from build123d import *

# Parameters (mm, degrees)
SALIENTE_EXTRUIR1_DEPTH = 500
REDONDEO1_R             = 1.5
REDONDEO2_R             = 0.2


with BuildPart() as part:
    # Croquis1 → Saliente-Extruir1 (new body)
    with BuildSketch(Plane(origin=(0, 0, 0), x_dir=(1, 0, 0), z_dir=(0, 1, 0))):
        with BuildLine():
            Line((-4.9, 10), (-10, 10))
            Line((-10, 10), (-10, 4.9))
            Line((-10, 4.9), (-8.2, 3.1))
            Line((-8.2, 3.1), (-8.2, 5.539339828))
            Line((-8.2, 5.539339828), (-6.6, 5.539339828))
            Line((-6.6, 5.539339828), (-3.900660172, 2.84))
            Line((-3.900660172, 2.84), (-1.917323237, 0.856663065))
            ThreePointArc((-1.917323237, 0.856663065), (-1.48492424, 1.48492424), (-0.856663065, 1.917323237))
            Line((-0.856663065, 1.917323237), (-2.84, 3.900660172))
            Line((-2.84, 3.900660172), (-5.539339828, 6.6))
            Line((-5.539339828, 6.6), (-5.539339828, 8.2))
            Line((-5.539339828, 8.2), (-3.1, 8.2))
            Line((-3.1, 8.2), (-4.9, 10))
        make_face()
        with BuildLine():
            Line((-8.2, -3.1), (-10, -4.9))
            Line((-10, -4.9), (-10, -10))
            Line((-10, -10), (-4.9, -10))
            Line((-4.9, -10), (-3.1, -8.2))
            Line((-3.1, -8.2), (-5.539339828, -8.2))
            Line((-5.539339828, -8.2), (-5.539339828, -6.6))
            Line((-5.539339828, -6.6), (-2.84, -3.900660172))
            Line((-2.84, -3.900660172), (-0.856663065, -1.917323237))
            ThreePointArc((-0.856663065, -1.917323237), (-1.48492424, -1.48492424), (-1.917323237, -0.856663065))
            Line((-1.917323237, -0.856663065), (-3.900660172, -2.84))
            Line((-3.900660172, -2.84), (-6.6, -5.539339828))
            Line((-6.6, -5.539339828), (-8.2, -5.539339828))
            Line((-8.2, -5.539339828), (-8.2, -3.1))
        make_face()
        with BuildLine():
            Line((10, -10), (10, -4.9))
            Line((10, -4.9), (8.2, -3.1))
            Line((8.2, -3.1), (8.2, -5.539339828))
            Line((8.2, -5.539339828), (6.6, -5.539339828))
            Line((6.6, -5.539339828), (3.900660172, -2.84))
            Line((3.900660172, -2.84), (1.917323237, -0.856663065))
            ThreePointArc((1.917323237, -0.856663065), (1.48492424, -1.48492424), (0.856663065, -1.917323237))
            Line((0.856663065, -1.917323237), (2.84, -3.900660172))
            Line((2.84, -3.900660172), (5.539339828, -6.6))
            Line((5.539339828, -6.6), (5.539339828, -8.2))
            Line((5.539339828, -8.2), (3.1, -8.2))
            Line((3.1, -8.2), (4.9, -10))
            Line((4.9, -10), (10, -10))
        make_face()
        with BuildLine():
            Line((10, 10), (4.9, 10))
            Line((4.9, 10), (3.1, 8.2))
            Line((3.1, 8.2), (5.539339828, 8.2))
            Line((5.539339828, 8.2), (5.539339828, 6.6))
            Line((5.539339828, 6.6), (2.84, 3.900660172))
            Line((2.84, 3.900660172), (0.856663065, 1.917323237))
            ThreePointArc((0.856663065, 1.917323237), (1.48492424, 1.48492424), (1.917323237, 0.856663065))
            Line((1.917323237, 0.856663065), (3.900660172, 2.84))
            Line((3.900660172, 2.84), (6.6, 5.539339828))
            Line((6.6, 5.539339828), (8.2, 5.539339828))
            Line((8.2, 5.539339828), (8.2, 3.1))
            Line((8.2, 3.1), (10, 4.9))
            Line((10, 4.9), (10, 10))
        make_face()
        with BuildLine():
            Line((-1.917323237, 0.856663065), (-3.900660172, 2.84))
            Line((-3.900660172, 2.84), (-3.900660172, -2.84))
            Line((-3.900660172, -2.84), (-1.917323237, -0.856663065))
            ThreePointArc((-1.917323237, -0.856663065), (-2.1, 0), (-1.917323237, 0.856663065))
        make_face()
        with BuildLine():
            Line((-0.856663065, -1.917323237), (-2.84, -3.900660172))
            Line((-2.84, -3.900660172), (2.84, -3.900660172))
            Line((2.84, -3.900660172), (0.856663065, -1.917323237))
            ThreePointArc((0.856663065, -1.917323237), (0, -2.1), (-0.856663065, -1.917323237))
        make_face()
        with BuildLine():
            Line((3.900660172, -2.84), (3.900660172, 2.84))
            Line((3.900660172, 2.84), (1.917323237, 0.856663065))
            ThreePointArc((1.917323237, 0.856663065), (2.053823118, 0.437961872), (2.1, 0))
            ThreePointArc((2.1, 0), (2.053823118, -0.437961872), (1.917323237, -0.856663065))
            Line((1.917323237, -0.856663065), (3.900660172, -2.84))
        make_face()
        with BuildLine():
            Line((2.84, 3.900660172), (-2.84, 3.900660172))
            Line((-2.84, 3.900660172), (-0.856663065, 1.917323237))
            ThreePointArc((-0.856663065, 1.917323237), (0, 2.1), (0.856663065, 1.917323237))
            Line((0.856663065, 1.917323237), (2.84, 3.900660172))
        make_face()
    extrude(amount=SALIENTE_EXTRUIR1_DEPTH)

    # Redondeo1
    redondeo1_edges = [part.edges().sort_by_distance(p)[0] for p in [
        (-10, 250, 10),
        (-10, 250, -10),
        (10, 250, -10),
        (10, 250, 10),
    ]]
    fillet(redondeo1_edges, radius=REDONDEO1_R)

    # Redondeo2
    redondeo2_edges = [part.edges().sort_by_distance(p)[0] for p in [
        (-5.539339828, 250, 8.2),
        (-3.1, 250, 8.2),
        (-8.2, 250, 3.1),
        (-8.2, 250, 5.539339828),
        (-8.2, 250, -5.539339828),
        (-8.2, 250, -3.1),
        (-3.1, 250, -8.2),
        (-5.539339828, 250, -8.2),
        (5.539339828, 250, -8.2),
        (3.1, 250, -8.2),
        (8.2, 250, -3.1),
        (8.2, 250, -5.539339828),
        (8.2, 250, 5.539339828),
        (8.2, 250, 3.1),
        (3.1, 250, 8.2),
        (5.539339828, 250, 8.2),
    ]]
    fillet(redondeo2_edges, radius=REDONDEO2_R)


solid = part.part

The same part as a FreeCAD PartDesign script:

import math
import FreeCAD as App
import Part
import Sketcher
from FreeCAD import Vector
Q = App.Units.Quantity


def edges_at(feature, points):
    """Names of the edges that pass closest to the given points."""
    edges = feature.Shape.Edges
    near = lambda p: min(range(len(edges)), key=lambda i: edges[i].distToShape(Part.Vertex(*p))[0])
    return sorted({f"Edge{near(p) + 1}" for p in points})


def add_polygon(sketch, points):
    """Adds a closed chain of lines whose ends are joined by coincident constraints."""
    first, n = sketch.GeometryCount, len(points)
    for a, b in zip(points, points[1:] + points[:1]):
        sketch.addGeometry(Part.LineSegment(App.Vector(*a, 0), App.Vector(*b, 0)), False)
    for i in range(n):
        sketch.addConstraint(Sketcher.Constraint("Coincident", first + i, 2, first + (i + 1) % n, 1))

doc = App.newDocument("Part")
body = doc.addObject("PartDesign::Body", "Body")

sketch1 = doc.addObject("Sketcher::SketchObject", "Sketch")
body.addObject(sketch1)
sketch1.AttachmentSupport = (doc.XZ_Plane, [""])
sketch1.MapMode = "FlatFace"
add_polygon(sketch1, [(-4.9, -10), (-10, -10), (-10, -4.9), (-8.2, -3.1), (-8.2, -5.5), (-6.6, -5.5), (-3.9, -2.8), (-3.9, 2.8), (-6.6, 5.5), (-8.2, 5.5), (-8.2, 3.1), (-10, 4.9), (-10, 10), (-4.9, 10), (-3.1, 8.2), (-5.5, 8.2), (-5.5, 6.6), (-2.8, 3.9), (2.8, 3.9), (5.5, 6.6), (5.5, 8.2), (3.1, 8.2), (4.9, 10), (10, 10), (10, 4.9), (8.2, 3.1), (8.2, 5.5), (6.6, 5.5), (3.9, 2.8), (3.9, -2.8), (6.6, -5.5), (8.2, -5.5), (8.2, -3.1), (10, -4.9), (10, -10), (4.9, -10), (3.1, -8.2), (5.5, -8.2), (5.5, -6.6), (2.8, -3.9), (-2.8, -3.9), (-5.5, -6.6), (-5.5, -8.2), (-3.1, -8.2)])
sketch1.addGeometry(Part.ArcOfCircle(Part.Circle(Vector(0, 0, 0), Vector(0, 0, 1), 2.1), math.radians(-66), math.radians(-24)), False)
sketch1.addGeometry(Part.ArcOfCircle(Part.Circle(Vector(0, 0, 0), Vector(0, 0, 1), 2.1), math.radians(-24), math.radians(0)), False)
sketch1.addGeometry(Part.ArcOfCircle(Part.Circle(Vector(0, 0, 0), Vector(0, 0, 1), 2.1), math.radians(0), math.radians(24)), False)
sketch1.addGeometry(Part.ArcOfCircle(Part.Circle(Vector(0, 0, 0), Vector(0, 0, 1), 2.1), math.radians(24), math.radians(66)), False)
sketch1.addGeometry(Part.ArcOfCircle(Part.Circle(Vector(0, 0, 0), Vector(0, 0, 1), 2.1), math.radians(66), math.radians(114)), False)
sketch1.addGeometry(Part.ArcOfCircle(Part.Circle(Vector(0, 0, 0), Vector(0, 0, 1), 2.1), math.radians(114), math.radians(156)), False)
sketch1.addGeometry(Part.ArcOfCircle(Part.Circle(Vector(0, 0, 0), Vector(0, 0, 1), 2.1), math.radians(156), math.radians(204)), False)
sketch1.addGeometry(Part.ArcOfCircle(Part.Circle(Vector(0, 0, 0), Vector(0, 0, 1), 2.1), math.radians(-156), math.radians(-114)), False)
sketch1.addGeometry(Part.ArcOfCircle(Part.Circle(Vector(0, 0, 0), Vector(0, 0, 1), 2.1), math.radians(-114), math.radians(-66)), False)
sketch1.addConstraint(Sketcher.Constraint("Tangent", 44, 2, 45, 1))
sketch1.addConstraint(Sketcher.Constraint("Tangent", 45, 2, 46, 1))
sketch1.addConstraint(Sketcher.Constraint("Tangent", 46, 2, 47, 1))
sketch1.addConstraint(Sketcher.Constraint("Tangent", 47, 2, 48, 1))
sketch1.addConstraint(Sketcher.Constraint("Tangent", 48, 2, 49, 1))
sketch1.addConstraint(Sketcher.Constraint("Tangent", 49, 2, 50, 1))
sketch1.addConstraint(Sketcher.Constraint("Tangent", 50, 2, 51, 1))
sketch1.addConstraint(Sketcher.Constraint("Tangent", 51, 2, 52, 1))
sketch1.addConstraint(Sketcher.Constraint("Tangent", 52, 2, 44, 1))
sketch1.addConstraint(Sketcher.Constraint("Horizontal", 0))
sketch1.addConstraint(Sketcher.Constraint("Vertical", 1))
sketch1.addConstraint(Sketcher.Constraint("Vertical", 3))
sketch1.addConstraint(Sketcher.Constraint("Horizontal", 4))
sketch1.addConstraint(Sketcher.Constraint("Vertical", 6))
sketch1.addConstraint(Sketcher.Constraint("Horizontal", 8))
sketch1.addConstraint(Sketcher.Constraint("Vertical", 9))
sketch1.addConstraint(Sketcher.Constraint("Vertical", 11))
sketch1.addConstraint(Sketcher.Constraint("Horizontal", 12))
sketch1.addConstraint(Sketcher.Constraint("Horizontal", 14))
sketch1.addConstraint(Sketcher.Constraint("Vertical", 15))
sketch1.addConstraint(Sketcher.Constraint("Horizontal", 17))
sketch1.addConstraint(Sketcher.Constraint("Vertical", 19))
sketch1.addConstraint(Sketcher.Constraint("Horizontal", 20))
sketch1.addConstraint(Sketcher.Constraint("Horizontal", 22))
sketch1.addConstraint(Sketcher.Constraint("Vertical", 23))
sketch1.addConstraint(Sketcher.Constraint("Vertical", 25))
sketch1.addConstraint(Sketcher.Constraint("Horizontal", 26))
sketch1.addConstraint(Sketcher.Constraint("Vertical", 28))
sketch1.addConstraint(Sketcher.Constraint("Horizontal", 30))
sketch1.addConstraint(Sketcher.Constraint("Vertical", 31))
sketch1.addConstraint(Sketcher.Constraint("Vertical", 33))
sketch1.addConstraint(Sketcher.Constraint("Horizontal", 34))
sketch1.addConstraint(Sketcher.Constraint("Horizontal", 36))
sketch1.addConstraint(Sketcher.Constraint("Vertical", 37))
sketch1.addConstraint(Sketcher.Constraint("Horizontal", 39))
sketch1.addConstraint(Sketcher.Constraint("Vertical", 41))
sketch1.addConstraint(Sketcher.Constraint("Horizontal", 42))
sketch1.addConstraint(Sketcher.Constraint("Coincident", 44, 3, -1, 1))
sketch1.addConstraint(Sketcher.Constraint("Coincident", 46, 3, -1, 1))
sketch1.addConstraint(Sketcher.Constraint("Coincident", 48, 3, -1, 1))
sketch1.addConstraint(Sketcher.Constraint("Coincident", 50, 3, -1, 1))
sketch1.addConstraint(Sketcher.Constraint("Symmetric", 0, 2, 22, 2, -1, 1))
sketch1.addConstraint(Sketcher.Constraint("Symmetric", 2, 2, 24, 2, -1, 1))
sketch1.addConstraint(Sketcher.Constraint("Symmetric", 4, 2, 26, 2, -1, 1))
sketch1.addConstraint(Sketcher.Constraint("Symmetric", 5, 2, 27, 2, -1, 1))
sketch1.addConstraint(Sketcher.Constraint("Symmetric", 7, 2, 29, 2, -1, 1))
sketch1.addConstraint(Sketcher.Constraint("Symmetric", 9, 2, 31, 2, -1, 1))
sketch1.addConstraint(Sketcher.Constraint("Symmetric", 10, 2, 32, 2, -1, 1))
sketch1.addConstraint(Sketcher.Constraint("Symmetric", 12, 2, 34, 2, -1, 1))
sketch1.addConstraint(Sketcher.Constraint("Symmetric", 13, 2, 35, 2, -1, 1))
sketch1.addConstraint(Sketcher.Constraint("Symmetric", 15, 2, 37, 2, -1, 1))
sketch1.addConstraint(Sketcher.Constraint("Symmetric", 16, 2, 38, 2, -1, 1))
sketch1.addConstraint(Sketcher.Constraint("Symmetric", 18, 2, 40, 2, -1, 1))
sketch1.addConstraint(Sketcher.Constraint("Symmetric", 20, 2, 42, 2, -1, 1))
sketch1.addConstraint(Sketcher.Constraint("Symmetric", 15, 2, 18, 2, -2))
sketch1.addConstraint(Sketcher.Constraint("Symmetric", 13, 2, 20, 2, -2))
sketch1.addConstraint(Sketcher.Constraint("Symmetric", 12, 2, 21, 2, -2))
sketch1.addConstraint(Sketcher.Constraint("Symmetric", 10, 2, 23, 2, -2))
sketch1.addConstraint(Sketcher.Constraint("Symmetric", 9, 2, 24, 2, -2))
sketch1.addConstraint(Sketcher.Constraint("Symmetric", 7, 2, 26, 2, -2))
sketch1.addConstraint(Sketcher.Constraint("PointOnObject", 45, 2, -1))
sketch1.addConstraint(Sketcher.Constraint("Parallel", 2, 5))
sketch1.addConstraint(Sketcher.Constraint("Perpendicular", 5, 7))
sketch1.addConstraint(Sketcher.Constraint("Parallel", 7, 10))
sketch1.addConstraint(Sketcher.Constraint("Parallel", 10, 13))
sketch1.addConstraint(Sketcher.Constraint("Parallel", 13, 16))
sketch1.addConstraint(Sketcher.Constraint("Perpendicular", 16, 18))
sketch1.addConstraint(Sketcher.Constraint("Parallel", 18, 21))
sketch1.addConstraint(Sketcher.Constraint("Perpendicular", 27, 29))
sketch1.addConstraint(Sketcher.Constraint("Perpendicular", 38, 40))
sketch1.addConstraint(Sketcher.Constraint("Parallel", 40, 43))
sketch1.addConstraint(Sketcher.Constraint("Horizontal", 47, 2, 48, 2))
sketch1.addConstraint(Sketcher.Constraint("Horizontal", 46, 2, 49, 2))
sketch1.addConstraint(Sketcher.Constraint("Horizontal", 44, 2, 50, 2))
sketch1.addConstraint(Sketcher.Constraint("Horizontal", 51, 2, 52, 2))
sketch1.addConstraint(Sketcher.Constraint("Vertical", 44, 2, 46, 2))
sketch1.addConstraint(Sketcher.Constraint("Vertical", 48, 2, 51, 2))
sketch1.addConstraint(Sketcher.Constraint("Equal", 34, 1))
sketch1.addConstraint(Sketcher.Constraint("Equal", 42, 3))
sketch1.addConstraint(Sketcher.Constraint("Equal", 39, 6))
sketch1.addConstraint(Sketcher.Constraint("Equal", 30, 15))
sketch1.addConstraint(Sketcher.Constraint("Equal", 10, 13))
sketch1.addConstraint(Sketcher.Constraint("Equal", 7, 16))
sketch1.addConstraint(Sketcher.Constraint("Radius", 44, Q("2.1 mm")))
sketch1.addConstraint(Sketcher.Constraint("DistanceX", 0, 2, 0, 1, Q("5.1 mm")))
sketch1.addConstraint(Sketcher.Constraint("DistanceX", 4, 1, 4, 2, Q("1.6 mm")))
sketch1.addConstraint(Sketcher.Constraint("DistanceX", 0, 2, -1, 1, Q("10 mm")))
sketch1.addConstraint(Sketcher.Constraint("DistanceX", 17, 1, 17, 2, Q("5.68 mm")))
sketch1.addConstraint(Sketcher.Constraint("DistanceX", 2, 2, -1, 1, Q("8.2 mm")))
sketch1.addConstraint(Sketcher.Constraint("DistanceX", 14, 2, 14, 1, Q("2.43934 mm")))
sketch1.addConstraint(Sketcher.Constraint("DistanceX", -1, 1, 44, 2, Q("1.917323 mm")))
sketch1.addConstraint(Sketcher.Constraint("DistanceX", -1, 1, 47, 2, Q("0.856663 mm")))
pad1 = doc.addObject("PartDesign::Pad", "Pad")
body.addObject(pad1)
pad1.Profile = sketch1
pad1.Length = 500
pad1.Reversed = True
doc.recompute()

fillet = doc.addObject("PartDesign::Fillet", "Fillet")
body.addObject(fillet)
fillet.Base = (pad1, edges_at(pad1, [
    (-10, 250, 10),
    (-10, 250, -10),
    (10, 250, -10),
    (10, 250, 10),
]))
fillet.Radius = 1.5
doc.recompute()

fillet2 = doc.addObject("PartDesign::Fillet", "Fillet001")
body.addObject(fillet2)
fillet2.Base = (fillet, edges_at(fillet, [
    (-5.539, 250, 8.2),
    (-3.1, 250, 8.2),
    (-8.2, 250, 3.1),
    (-8.2, 250, 5.539),
    (-8.2, 250, -5.539),
    (-8.2, 250, -3.1),
    (-3.1, 250, -8.2),
    (-5.539, 250, -8.2),
    (5.539, 250, -8.2),
    (3.1, 250, -8.2),
    (8.2, 250, -3.1),
    (8.2, 250, -5.539),
    (8.2, 250, 5.539),
    (8.2, 250, 3.1),
    (3.1, 250, 8.2),
    (5.539, 250, 8.2),
]))
fillet2.Radius = 0.2

doc.recompute()
